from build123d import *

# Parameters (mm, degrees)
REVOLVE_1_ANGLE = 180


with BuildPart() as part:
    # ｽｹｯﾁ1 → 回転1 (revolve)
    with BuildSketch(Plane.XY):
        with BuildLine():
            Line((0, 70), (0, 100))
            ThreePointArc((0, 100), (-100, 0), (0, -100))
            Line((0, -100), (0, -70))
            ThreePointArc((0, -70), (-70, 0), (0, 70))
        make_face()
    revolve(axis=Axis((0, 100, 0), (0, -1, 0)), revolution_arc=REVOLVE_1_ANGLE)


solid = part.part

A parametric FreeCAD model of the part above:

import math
import FreeCAD as App
import Part
import Sketcher
from FreeCAD import Vector

doc = App.newDocument("Part")
body = doc.addObject("PartDesign::Body", "Body")

# Sketch on XY plane
sketch1 = body.newObject("Sketcher::SketchObject", "Sketch")
sketch1.AttachmentSupport = (doc.getObject("XY_Plane"), [""])
sketch1.MapMode = "FlatFace"
sketch1.addGeometry(Part.LineSegment(Vector(0, 70, 0), Vector(0, 100, 0)), False)
sketch1.addGeometry(Part.ArcOfCircle(Part.Circle(Vector(0, 0, 0), Vector(0, 0, 1), 100), math.radians(90), math.radians(270)), False)
sketch1.addGeometry(Part.LineSegment(Vector(0, -100, 0), Vector(0, -70, 0)), False)
sketch1.addGeometry(Part.ArcOfCircle(Part.Circle(Vector(0, 0, 0), Vector(0, 0, 1), 70), math.radians(90), math.radians(270)), False)
sketch1.addConstraint(Sketcher.Constraint("Coincident", 0, 2, 1, 1))
sketch1.addConstraint(Sketcher.Constraint("Coincident", 1, 2, 2, 1))
sketch1.addConstraint(Sketcher.Constraint("Coincident", 2, 2, 3, 2))
sketch1.addConstraint(Sketcher.Constraint("Coincident", 3, 1, 0, 1))
sketch1.addConstraint(Sketcher.Constraint("Vertical", 0))
sketch1.addConstraint(Sketcher.Constraint("Vertical", 2))
sketch1.addConstraint(Sketcher.Constraint("Coincident", 1, 3, -1, 1))
sketch1.addConstraint(Sketcher.Constraint("Coincident", 3, 3, -1, 1))
sketch1.addConstraint(Sketcher.Constraint("PointOnObject", 0, 2, -2))
sketch1.addConstraint(Sketcher.Constraint("PointOnObject", 1, 2, -2))
sketch1.addConstraint(Sketcher.Constraint("Radius", 1, 100.0))
sketch1.addConstraint(Sketcher.Constraint("Radius", 3, 70.0))
revolution = body.newObject("PartDesign::Revolution", "Revolution")
revolution.Profile = sketch1
revolution.ReferenceAxis = (sketch1, ["V_Axis"])
revolution.Angle = 180
revolution.Reversed = True

doc.recompute()
